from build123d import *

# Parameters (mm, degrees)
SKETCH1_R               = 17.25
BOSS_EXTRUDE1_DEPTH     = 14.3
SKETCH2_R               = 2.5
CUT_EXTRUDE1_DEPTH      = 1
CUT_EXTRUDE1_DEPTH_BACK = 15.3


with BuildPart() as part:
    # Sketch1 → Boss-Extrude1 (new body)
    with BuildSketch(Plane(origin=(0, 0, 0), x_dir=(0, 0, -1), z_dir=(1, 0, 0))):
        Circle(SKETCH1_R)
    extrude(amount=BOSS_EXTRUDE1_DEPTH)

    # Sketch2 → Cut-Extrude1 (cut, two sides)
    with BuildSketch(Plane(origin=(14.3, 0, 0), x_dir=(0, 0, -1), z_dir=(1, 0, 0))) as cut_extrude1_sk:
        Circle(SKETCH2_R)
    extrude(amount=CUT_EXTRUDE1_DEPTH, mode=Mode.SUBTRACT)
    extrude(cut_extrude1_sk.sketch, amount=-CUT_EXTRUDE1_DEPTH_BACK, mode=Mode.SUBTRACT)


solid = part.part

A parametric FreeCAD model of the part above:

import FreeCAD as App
import Part
import Sketcher

V = App.Vector
Q = App.Units.Quantity

doc = App.newDocument("Part")
params = doc.addObject("Spreadsheet::Sheet", "Params")
for row, (alias, value) in enumerate([
    ("sketch1_diameter", "34.5 mm"),
    ("pad1_length", "14.3 mm"),
    ("sketch2_diameter", "5 mm"),
], start=1):
    params.set(f"A{row}", alias)
    params.set(f"B{row}", "=" + value)
    params.setAlias(f"B{row}", alias)

body = doc.addObject("PartDesign::Body", "Body")

# Sketch on YZ plane
sketch1 = body.newObject("Sketcher::SketchObject", "Sketch")
sketch1.AttachmentSupport = (doc.getObject("YZ_Plane"), [""])
sketch1.MapMode = "FlatFace"
sketch1.addGeometry(Part.Circle(V(0, 0, 0), V(0, 0, 1), 17.25), False)
sketch1.addConstraint([
    Sketcher.Constraint("Coincident", 0, 3, -1, 1),
    Sketcher.Constraint("Diameter", 0, Q("34.5 mm")),
])
sketch1.setExpression("Constraints[1]", "Params.sketch1_diameter")
pad1 = body.newObject("PartDesign::Pad", "Pad")
pad1.Profile = sketch1
pad1.setExpression("Length", "Params.pad1_length")

# Sketch on YZ plane
sketch2 = body.newObject("Sketcher::SketchObject", "Sketch001")
sketch2.AttachmentSupport = (doc.getObject("YZ_Plane"), [""])
sketch2.MapMode = "FlatFace"
sketch2.AttachmentOffset = App.Placement(V(0, 0, 14.3), App.Rotation())
sketch2.addGeometry(Part.Circle(V(0, 0, 0), V(0, 0, 1), 2.5), False)
sketch2.addConstraint([
    Sketcher.Constraint("Coincident", 0, 3, -1, 1),
    Sketcher.Constraint("Diameter", 0, Q("5 mm")),
])
sketch2.setExpression("Constraints[1]", "Params.sketch2_diameter")
pocket1 = body.newObject("PartDesign::Pocket", "Pocket")
pocket1.Profile = sketch2
pocket1.Type = "ThroughAll"
pocket1.Midplane = True

doc.recompute()
